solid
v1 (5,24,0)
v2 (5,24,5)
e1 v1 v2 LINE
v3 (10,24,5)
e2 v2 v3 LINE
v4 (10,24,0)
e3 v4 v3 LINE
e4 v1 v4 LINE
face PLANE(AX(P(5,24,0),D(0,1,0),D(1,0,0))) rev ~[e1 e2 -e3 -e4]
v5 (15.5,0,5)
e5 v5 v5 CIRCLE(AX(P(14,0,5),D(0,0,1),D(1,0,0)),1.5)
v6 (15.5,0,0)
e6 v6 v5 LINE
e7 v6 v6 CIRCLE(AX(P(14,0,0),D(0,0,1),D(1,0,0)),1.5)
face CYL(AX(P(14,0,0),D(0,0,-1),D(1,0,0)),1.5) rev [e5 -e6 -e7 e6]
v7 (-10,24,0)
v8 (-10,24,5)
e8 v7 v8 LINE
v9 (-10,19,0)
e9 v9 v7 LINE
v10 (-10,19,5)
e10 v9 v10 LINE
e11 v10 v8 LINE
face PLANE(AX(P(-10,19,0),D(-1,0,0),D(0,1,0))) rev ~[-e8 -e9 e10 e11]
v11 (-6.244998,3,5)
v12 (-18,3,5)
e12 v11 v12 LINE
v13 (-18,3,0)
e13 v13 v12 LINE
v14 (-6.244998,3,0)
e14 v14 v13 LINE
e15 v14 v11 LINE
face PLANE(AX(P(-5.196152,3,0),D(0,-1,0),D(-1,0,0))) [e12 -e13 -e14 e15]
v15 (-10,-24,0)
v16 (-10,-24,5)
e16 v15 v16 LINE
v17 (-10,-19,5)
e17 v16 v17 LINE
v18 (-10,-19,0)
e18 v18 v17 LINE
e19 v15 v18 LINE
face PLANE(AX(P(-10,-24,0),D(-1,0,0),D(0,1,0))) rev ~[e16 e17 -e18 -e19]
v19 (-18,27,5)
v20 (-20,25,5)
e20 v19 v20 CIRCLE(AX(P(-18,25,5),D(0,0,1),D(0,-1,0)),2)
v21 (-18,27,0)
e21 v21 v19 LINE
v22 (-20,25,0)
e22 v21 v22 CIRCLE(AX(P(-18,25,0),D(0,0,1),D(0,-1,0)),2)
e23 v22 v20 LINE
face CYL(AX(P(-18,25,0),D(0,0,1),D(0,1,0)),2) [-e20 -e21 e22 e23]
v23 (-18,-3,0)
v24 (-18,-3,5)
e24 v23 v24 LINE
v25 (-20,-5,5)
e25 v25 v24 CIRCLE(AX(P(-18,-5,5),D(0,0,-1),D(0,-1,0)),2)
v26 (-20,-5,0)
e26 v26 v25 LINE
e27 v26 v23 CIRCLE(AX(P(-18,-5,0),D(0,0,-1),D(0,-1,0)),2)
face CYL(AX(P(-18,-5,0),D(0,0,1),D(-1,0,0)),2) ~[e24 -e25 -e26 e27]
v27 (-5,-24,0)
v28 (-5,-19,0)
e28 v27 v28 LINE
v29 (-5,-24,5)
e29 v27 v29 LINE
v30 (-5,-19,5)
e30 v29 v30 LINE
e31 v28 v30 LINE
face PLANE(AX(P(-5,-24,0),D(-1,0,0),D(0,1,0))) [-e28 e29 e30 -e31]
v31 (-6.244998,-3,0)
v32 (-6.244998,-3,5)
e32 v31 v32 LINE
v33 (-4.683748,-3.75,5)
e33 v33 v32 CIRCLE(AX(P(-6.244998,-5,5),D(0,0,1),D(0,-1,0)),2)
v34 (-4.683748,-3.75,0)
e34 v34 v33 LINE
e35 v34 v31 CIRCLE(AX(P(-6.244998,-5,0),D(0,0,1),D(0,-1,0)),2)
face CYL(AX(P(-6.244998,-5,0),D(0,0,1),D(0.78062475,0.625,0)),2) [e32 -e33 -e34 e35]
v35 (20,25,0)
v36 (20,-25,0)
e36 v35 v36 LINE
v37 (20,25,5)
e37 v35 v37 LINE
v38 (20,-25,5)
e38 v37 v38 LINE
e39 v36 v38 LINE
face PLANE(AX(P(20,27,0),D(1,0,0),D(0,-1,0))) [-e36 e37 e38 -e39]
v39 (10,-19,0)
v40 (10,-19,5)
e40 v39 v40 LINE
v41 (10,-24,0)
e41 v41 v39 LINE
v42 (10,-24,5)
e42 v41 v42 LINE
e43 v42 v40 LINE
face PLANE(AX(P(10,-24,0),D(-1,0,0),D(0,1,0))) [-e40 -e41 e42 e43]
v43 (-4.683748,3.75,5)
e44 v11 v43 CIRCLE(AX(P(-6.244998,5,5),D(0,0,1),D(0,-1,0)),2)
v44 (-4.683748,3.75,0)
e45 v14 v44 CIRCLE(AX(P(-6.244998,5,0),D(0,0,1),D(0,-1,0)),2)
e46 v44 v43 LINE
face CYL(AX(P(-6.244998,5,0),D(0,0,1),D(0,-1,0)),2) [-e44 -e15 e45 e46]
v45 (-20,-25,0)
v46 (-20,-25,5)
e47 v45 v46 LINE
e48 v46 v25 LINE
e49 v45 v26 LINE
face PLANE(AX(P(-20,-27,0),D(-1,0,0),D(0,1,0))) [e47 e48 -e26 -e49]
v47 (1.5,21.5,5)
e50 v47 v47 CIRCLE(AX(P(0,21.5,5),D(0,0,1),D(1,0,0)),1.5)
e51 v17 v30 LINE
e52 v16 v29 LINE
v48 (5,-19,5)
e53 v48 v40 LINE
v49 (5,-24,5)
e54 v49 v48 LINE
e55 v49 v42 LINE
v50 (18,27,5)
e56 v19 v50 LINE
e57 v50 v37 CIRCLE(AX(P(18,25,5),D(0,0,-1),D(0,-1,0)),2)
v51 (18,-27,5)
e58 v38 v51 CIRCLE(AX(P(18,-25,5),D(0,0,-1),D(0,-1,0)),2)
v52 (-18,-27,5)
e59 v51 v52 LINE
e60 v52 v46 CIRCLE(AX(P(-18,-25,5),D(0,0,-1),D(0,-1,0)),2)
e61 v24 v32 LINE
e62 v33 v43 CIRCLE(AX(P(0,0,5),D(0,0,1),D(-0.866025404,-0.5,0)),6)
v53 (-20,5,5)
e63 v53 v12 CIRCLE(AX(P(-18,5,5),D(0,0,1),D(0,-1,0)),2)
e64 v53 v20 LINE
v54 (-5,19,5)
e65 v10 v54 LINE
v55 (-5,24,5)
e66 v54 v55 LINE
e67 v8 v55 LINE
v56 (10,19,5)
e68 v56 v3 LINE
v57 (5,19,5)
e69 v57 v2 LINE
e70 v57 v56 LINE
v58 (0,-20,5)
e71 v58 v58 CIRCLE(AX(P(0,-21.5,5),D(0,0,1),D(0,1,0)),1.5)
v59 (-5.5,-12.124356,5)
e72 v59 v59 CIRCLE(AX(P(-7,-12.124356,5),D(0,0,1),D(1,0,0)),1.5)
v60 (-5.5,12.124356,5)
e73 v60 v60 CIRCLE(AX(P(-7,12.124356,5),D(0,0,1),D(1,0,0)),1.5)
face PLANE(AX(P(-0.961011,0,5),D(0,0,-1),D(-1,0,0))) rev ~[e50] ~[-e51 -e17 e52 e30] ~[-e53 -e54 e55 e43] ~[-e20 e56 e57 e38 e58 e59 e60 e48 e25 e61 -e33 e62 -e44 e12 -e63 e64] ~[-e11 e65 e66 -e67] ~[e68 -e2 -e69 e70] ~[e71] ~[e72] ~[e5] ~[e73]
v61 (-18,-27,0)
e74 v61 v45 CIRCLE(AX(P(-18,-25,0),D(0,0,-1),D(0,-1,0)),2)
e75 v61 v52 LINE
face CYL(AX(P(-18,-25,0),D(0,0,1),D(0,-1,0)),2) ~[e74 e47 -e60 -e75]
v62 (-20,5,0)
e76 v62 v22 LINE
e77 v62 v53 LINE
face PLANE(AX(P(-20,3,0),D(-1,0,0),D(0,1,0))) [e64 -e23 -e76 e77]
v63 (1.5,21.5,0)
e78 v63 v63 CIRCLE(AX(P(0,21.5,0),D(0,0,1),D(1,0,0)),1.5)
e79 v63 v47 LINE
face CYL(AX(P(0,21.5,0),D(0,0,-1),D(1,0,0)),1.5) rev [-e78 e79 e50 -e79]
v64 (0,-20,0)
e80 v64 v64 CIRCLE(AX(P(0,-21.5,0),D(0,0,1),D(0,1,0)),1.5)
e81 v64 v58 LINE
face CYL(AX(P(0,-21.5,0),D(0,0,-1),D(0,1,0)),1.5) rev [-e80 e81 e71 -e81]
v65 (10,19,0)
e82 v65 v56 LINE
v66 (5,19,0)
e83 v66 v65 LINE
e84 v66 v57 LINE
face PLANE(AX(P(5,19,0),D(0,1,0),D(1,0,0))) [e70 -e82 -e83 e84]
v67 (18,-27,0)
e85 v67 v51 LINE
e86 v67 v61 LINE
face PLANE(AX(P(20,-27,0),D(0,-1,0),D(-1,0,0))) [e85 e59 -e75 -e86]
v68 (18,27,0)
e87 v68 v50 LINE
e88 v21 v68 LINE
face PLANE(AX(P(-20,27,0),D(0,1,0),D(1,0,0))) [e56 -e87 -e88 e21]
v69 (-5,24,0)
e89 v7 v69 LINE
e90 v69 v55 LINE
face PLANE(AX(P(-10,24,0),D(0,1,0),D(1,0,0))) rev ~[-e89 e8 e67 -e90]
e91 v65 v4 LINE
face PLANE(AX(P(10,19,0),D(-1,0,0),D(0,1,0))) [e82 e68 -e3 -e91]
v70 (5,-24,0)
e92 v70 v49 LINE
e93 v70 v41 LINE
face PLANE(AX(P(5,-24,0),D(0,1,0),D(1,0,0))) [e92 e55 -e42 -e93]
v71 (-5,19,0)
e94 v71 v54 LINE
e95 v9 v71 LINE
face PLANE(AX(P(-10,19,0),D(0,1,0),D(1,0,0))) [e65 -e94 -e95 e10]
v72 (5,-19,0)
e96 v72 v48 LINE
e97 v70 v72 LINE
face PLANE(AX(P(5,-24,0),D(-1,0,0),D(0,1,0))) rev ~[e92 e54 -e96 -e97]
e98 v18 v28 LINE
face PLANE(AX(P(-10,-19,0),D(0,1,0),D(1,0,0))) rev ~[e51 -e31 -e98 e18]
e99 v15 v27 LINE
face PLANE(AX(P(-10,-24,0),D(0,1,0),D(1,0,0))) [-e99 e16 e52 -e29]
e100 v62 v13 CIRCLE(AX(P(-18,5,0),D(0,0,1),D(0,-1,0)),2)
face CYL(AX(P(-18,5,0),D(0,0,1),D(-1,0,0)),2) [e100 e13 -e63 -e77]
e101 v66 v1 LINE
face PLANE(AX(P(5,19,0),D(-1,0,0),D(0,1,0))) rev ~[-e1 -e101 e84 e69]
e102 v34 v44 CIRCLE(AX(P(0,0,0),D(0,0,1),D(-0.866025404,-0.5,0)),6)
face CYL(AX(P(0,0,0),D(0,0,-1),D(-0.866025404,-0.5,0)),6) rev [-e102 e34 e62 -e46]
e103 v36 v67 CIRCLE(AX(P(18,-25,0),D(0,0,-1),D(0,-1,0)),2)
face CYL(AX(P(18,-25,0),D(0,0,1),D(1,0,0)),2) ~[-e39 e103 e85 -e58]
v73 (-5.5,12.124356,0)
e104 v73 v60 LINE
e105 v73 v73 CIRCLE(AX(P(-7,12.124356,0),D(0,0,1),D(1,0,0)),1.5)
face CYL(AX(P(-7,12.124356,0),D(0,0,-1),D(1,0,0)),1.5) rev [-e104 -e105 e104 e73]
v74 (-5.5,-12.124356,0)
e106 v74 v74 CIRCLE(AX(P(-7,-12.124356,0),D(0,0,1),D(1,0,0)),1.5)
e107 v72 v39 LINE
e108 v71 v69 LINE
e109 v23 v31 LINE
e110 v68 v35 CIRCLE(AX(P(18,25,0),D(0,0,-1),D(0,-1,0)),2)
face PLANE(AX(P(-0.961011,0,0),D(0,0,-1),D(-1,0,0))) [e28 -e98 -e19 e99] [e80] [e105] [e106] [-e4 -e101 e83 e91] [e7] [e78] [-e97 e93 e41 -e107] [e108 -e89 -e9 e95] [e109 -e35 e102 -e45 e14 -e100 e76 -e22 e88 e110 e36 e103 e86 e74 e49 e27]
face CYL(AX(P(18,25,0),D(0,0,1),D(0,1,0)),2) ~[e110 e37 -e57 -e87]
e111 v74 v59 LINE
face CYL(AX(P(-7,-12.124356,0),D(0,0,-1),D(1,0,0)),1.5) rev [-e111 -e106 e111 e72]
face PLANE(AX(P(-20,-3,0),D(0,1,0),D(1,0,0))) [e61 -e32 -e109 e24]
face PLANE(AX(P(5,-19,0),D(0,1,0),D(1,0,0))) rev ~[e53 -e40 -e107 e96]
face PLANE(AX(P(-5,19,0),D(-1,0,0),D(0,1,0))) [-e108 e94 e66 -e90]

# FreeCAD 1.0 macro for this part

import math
import FreeCAD as App
import Part
import Sketcher

V = App.Vector


def edges_at(feature, points):
    """Names of the edges that pass closest to the given points."""
    edges = feature.Shape.Edges
    near = lambda p: min(range(len(edges)), key=lambda i: edges[i].distToShape(Part.Vertex(*p))[0])
    return sorted({f"Edge{near(p) + 1}" for p in points})


def add_polygon(sketch, points):
    """Adds a closed chain of lines whose ends are joined by coincident constraints."""
    first, n = sketch.GeometryCount, len(points)
    for a, b in zip(points, points[1:] + points[:1]):
        sketch.addGeometry(Part.LineSegment(App.Vector(*a, 0), App.Vector(*b, 0)), False)
    for i in range(n):
        sketch.addConstraint(Sketcher.Constraint("Coincident", first + i, 2, first + (i + 1) % n, 1))

doc = App.newDocument("Part")
body = doc.addObject("PartDesign::Body", "Body")

# Sketch on XY plane
sketch1 = doc.addObject("Sketcher::SketchObject", "Sketch")
body.addObject(sketch1)
sketch1.AttachmentSupport = (doc.XY_Plane, [""])
sketch1.MapMode = "FlatFace"
sketch1.addGeometry(Part.LineSegment(V(20, 27, 0), V(-20, 27, 0)), False)  # 0
sketch1.addGeometry(Part.LineSegment(V(-20, 27, 0), V(-20, 3, 0)), False)  # 1
sketch1.addGeometry(Part.LineSegment(V(-20, 3, 0), V(-5.2, 3, 0)), False)  # 2
sketch1.addGeometry(Part.ArcOfCircle(Part.Circle(V(0, 0, 0), V(0, 0, 1), 6), math.radians(-150), math.radians(150)), False)  # 3
sketch1.addGeometry(Part.LineSegment(V(-5.2, -3, 0), V(-20, -3, 0)), False)  # 4
sketch1.addGeometry(Part.LineSegment(V(-20, -3, 0), V(-20, -27, 0)), False)  # 5
sketch1.addGeometry(Part.LineSegment(V(-20, -27, 0), V(20, -27, 0)), False)  # 6
sketch1.addGeometry(Part.LineSegment(V(20, -27, 0), V(20, 27, 0)), False)  # 7
add_polygon(sketch1, [(5, -24), (5, -19), (10, -19), (10, -24)])  # lines 8-11
sketch1.addGeometry(Part.Circle(V(0, -21.5, 0), V(0, 0, 1), 1.5), False)  # 12
add_polygon(sketch1, [(-10, -24), (-10, -19), (-5, -19), (-5, -24)])  # lines 13-16
sketch1.addGeometry(Part.Circle(V(-7, -12.1, 0), V(0, 0, 1), 1.5), False)  # 17
sketch1.addGeometry(Part.Circle(V(14, 0, 0), V(0, 0, 1), 1.5), False)  # 18
add_polygon(sketch1, [(5, 19), (5, 24), (10, 24), (10, 19)])  # lines 19-22
sketch1.addGeometry(Part.Circle(V(0, 21.5, 0), V(0, 0, 1), 1.5), False)  # 23
sketch1.addGeometry(Part.Circle(V(-7, 12.1, 0), V(0, 0, 1), 1.5), False)  # 24
add_polygon(sketch1, [(-10, 19), (-10, 24), (-5, 24), (-5, 19)])  # lines 25-28
sketch1.addConstraint([
    Sketcher.Constraint("Coincident", 0, 2, 1, 1),
    Sketcher.Constraint("Coincident", 1, 2, 2, 1),
    Sketcher.Constraint("Coincident", 2, 2, 3, 2),
    Sketcher.Constraint("Coincident", 3, 1, 4, 1),
    Sketcher.Constraint("Coincident", 4, 2, 5, 1),
    Sketcher.Constraint("Coincident", 5, 2, 6, 1),
    Sketcher.Constraint("Coincident", 6, 2, 7, 1),
    Sketcher.Constraint("Coincident", 7, 2, 0, 1),
    Sketcher.Constraint("Horizontal", 0),
    Sketcher.Constraint("Vertical", 1),
    Sketcher.Constraint("Horizontal", 2),
    Sketcher.Constraint("Horizontal", 4),
    Sketcher.Constraint("Vertical", 5),
    Sketcher.Constraint("Horizontal", 6),
    Sketcher.Constraint("Vertical", 7),
    Sketcher.Constraint("Vertical", 8),
    Sketcher.Constraint("Horizontal", 9),
    Sketcher.Constraint("Vertical", 10),
    Sketcher.Constraint("Horizontal", 11),
    Sketcher.Constraint("Vertical", 13),
    Sketcher.Constraint("Horizontal", 14),
    Sketcher.Constraint("Vertical", 15),
    Sketcher.Constraint("Horizontal", 16),
    Sketcher.Constraint("Vertical", 19),
    Sketcher.Constraint("Horizontal", 20),
    Sketcher.Constraint("Vertical", 21),
    Sketcher.Constraint("Horizontal", 22),
    Sketcher.Constraint("Vertical", 25),
    Sketcher.Constraint("Horizontal", 26),
    Sketcher.Constraint("Vertical", 27),
    Sketcher.Constraint("Horizontal", 28),
    Sketcher.Constraint("Coincident", 3, 3, -1, 1),
    Sketcher.Constraint("Equal", 12, 17),
    Sketcher.Constraint("Equal", 17, 18),
    Sketcher.Constraint("Equal", 18, 23),
    Sketcher.Constraint("Equal", 23, 24),
    Sketcher.Constraint("Symmetric", 12, 3, 23, 3, -1, 1),
    Sketcher.Constraint("Symmetric", 0, 2, 6, 2, -1, 1),
    Sketcher.Constraint("Symmetric", 15, 2, 19, 2, -1, 1),
    Sketcher.Constraint("Symmetric", 13, 2, 21, 2, -1, 1),
    Sketcher.Constraint("Symmetric", 10, 2, 25, 2, -1, 1),
    Sketcher.Constraint("Symmetric", 8, 2, 27, 2, -1, 1),
    Sketcher.Constraint("Symmetric", 9, 2, 13, 2, -2),
    Sketcher.Constraint("Symmetric", 11, 2, 15, 2, -2),
    Sketcher.Constraint("Symmetric", 17, 3, 24, 3, -1),
    Sketcher.Constraint("Symmetric", 1, 2, 4, 2, -1),
    Sketcher.Constraint("PointOnObject", 12, 3, -2),
    Sketcher.Constraint("PointOnObject", 18, 3, -1),
    Sketcher.Constraint("Equal", 28, 8),
    Sketcher.Constraint("Diameter", 12, 3.0),
    Sketcher.Constraint("Radius", 3, 6.0),
    Sketcher.Constraint("DistanceX", 0, 2, 0, 1, 40.0),
    Sketcher.Constraint("DistanceX", 9, 1, 9, 2, 5.0),
    Sketcher.Constraint("DistanceY", 1, 2, 1, 1, 24.0),
    Sketcher.Constraint("DistanceY", 7, 1, 7, 2, 54.0),
    Sketcher.Constraint("DistanceX", 17, 3, -1, 1, 7.0),
    Sketcher.Constraint("DistanceX", -1, 1, 18, 3, 14.0),
    Sketcher.Constraint("DistanceX", -1, 1, 8, 2, 5.0),
    Sketcher.Constraint("DistanceY", 8, 2, -1, 1, 19.0),
    Sketcher.Constraint("DistanceY", 12, 3, 23, 3, 43.0),
    Sketcher.Constraint("DistanceY", 17, 3, 24, 3, 24.248711),
])
pad1 = doc.addObject("PartDesign::Pad", "Pad")
body.addObject(pad1)
pad1.Profile = sketch1
pad1.Length = 5
doc.recompute()

fillet = doc.addObject("PartDesign::Fillet", "Fillet")
body.addObject(fillet)
fillet.Base = (pad1, edges_at(pad1, [
    (-20, -27, 2.5),
    (-20, -3, 2.5),
    (-5.196, -3, 2.5),
    (-5.196, 3, 2.5),
    (-20, 3, 2.5),
    (-20, 27, 2.5),
    (20, 27, 2.5),
    (20, -27, 2.5),
]))
fillet.Radius = 2

doc.recompute()
